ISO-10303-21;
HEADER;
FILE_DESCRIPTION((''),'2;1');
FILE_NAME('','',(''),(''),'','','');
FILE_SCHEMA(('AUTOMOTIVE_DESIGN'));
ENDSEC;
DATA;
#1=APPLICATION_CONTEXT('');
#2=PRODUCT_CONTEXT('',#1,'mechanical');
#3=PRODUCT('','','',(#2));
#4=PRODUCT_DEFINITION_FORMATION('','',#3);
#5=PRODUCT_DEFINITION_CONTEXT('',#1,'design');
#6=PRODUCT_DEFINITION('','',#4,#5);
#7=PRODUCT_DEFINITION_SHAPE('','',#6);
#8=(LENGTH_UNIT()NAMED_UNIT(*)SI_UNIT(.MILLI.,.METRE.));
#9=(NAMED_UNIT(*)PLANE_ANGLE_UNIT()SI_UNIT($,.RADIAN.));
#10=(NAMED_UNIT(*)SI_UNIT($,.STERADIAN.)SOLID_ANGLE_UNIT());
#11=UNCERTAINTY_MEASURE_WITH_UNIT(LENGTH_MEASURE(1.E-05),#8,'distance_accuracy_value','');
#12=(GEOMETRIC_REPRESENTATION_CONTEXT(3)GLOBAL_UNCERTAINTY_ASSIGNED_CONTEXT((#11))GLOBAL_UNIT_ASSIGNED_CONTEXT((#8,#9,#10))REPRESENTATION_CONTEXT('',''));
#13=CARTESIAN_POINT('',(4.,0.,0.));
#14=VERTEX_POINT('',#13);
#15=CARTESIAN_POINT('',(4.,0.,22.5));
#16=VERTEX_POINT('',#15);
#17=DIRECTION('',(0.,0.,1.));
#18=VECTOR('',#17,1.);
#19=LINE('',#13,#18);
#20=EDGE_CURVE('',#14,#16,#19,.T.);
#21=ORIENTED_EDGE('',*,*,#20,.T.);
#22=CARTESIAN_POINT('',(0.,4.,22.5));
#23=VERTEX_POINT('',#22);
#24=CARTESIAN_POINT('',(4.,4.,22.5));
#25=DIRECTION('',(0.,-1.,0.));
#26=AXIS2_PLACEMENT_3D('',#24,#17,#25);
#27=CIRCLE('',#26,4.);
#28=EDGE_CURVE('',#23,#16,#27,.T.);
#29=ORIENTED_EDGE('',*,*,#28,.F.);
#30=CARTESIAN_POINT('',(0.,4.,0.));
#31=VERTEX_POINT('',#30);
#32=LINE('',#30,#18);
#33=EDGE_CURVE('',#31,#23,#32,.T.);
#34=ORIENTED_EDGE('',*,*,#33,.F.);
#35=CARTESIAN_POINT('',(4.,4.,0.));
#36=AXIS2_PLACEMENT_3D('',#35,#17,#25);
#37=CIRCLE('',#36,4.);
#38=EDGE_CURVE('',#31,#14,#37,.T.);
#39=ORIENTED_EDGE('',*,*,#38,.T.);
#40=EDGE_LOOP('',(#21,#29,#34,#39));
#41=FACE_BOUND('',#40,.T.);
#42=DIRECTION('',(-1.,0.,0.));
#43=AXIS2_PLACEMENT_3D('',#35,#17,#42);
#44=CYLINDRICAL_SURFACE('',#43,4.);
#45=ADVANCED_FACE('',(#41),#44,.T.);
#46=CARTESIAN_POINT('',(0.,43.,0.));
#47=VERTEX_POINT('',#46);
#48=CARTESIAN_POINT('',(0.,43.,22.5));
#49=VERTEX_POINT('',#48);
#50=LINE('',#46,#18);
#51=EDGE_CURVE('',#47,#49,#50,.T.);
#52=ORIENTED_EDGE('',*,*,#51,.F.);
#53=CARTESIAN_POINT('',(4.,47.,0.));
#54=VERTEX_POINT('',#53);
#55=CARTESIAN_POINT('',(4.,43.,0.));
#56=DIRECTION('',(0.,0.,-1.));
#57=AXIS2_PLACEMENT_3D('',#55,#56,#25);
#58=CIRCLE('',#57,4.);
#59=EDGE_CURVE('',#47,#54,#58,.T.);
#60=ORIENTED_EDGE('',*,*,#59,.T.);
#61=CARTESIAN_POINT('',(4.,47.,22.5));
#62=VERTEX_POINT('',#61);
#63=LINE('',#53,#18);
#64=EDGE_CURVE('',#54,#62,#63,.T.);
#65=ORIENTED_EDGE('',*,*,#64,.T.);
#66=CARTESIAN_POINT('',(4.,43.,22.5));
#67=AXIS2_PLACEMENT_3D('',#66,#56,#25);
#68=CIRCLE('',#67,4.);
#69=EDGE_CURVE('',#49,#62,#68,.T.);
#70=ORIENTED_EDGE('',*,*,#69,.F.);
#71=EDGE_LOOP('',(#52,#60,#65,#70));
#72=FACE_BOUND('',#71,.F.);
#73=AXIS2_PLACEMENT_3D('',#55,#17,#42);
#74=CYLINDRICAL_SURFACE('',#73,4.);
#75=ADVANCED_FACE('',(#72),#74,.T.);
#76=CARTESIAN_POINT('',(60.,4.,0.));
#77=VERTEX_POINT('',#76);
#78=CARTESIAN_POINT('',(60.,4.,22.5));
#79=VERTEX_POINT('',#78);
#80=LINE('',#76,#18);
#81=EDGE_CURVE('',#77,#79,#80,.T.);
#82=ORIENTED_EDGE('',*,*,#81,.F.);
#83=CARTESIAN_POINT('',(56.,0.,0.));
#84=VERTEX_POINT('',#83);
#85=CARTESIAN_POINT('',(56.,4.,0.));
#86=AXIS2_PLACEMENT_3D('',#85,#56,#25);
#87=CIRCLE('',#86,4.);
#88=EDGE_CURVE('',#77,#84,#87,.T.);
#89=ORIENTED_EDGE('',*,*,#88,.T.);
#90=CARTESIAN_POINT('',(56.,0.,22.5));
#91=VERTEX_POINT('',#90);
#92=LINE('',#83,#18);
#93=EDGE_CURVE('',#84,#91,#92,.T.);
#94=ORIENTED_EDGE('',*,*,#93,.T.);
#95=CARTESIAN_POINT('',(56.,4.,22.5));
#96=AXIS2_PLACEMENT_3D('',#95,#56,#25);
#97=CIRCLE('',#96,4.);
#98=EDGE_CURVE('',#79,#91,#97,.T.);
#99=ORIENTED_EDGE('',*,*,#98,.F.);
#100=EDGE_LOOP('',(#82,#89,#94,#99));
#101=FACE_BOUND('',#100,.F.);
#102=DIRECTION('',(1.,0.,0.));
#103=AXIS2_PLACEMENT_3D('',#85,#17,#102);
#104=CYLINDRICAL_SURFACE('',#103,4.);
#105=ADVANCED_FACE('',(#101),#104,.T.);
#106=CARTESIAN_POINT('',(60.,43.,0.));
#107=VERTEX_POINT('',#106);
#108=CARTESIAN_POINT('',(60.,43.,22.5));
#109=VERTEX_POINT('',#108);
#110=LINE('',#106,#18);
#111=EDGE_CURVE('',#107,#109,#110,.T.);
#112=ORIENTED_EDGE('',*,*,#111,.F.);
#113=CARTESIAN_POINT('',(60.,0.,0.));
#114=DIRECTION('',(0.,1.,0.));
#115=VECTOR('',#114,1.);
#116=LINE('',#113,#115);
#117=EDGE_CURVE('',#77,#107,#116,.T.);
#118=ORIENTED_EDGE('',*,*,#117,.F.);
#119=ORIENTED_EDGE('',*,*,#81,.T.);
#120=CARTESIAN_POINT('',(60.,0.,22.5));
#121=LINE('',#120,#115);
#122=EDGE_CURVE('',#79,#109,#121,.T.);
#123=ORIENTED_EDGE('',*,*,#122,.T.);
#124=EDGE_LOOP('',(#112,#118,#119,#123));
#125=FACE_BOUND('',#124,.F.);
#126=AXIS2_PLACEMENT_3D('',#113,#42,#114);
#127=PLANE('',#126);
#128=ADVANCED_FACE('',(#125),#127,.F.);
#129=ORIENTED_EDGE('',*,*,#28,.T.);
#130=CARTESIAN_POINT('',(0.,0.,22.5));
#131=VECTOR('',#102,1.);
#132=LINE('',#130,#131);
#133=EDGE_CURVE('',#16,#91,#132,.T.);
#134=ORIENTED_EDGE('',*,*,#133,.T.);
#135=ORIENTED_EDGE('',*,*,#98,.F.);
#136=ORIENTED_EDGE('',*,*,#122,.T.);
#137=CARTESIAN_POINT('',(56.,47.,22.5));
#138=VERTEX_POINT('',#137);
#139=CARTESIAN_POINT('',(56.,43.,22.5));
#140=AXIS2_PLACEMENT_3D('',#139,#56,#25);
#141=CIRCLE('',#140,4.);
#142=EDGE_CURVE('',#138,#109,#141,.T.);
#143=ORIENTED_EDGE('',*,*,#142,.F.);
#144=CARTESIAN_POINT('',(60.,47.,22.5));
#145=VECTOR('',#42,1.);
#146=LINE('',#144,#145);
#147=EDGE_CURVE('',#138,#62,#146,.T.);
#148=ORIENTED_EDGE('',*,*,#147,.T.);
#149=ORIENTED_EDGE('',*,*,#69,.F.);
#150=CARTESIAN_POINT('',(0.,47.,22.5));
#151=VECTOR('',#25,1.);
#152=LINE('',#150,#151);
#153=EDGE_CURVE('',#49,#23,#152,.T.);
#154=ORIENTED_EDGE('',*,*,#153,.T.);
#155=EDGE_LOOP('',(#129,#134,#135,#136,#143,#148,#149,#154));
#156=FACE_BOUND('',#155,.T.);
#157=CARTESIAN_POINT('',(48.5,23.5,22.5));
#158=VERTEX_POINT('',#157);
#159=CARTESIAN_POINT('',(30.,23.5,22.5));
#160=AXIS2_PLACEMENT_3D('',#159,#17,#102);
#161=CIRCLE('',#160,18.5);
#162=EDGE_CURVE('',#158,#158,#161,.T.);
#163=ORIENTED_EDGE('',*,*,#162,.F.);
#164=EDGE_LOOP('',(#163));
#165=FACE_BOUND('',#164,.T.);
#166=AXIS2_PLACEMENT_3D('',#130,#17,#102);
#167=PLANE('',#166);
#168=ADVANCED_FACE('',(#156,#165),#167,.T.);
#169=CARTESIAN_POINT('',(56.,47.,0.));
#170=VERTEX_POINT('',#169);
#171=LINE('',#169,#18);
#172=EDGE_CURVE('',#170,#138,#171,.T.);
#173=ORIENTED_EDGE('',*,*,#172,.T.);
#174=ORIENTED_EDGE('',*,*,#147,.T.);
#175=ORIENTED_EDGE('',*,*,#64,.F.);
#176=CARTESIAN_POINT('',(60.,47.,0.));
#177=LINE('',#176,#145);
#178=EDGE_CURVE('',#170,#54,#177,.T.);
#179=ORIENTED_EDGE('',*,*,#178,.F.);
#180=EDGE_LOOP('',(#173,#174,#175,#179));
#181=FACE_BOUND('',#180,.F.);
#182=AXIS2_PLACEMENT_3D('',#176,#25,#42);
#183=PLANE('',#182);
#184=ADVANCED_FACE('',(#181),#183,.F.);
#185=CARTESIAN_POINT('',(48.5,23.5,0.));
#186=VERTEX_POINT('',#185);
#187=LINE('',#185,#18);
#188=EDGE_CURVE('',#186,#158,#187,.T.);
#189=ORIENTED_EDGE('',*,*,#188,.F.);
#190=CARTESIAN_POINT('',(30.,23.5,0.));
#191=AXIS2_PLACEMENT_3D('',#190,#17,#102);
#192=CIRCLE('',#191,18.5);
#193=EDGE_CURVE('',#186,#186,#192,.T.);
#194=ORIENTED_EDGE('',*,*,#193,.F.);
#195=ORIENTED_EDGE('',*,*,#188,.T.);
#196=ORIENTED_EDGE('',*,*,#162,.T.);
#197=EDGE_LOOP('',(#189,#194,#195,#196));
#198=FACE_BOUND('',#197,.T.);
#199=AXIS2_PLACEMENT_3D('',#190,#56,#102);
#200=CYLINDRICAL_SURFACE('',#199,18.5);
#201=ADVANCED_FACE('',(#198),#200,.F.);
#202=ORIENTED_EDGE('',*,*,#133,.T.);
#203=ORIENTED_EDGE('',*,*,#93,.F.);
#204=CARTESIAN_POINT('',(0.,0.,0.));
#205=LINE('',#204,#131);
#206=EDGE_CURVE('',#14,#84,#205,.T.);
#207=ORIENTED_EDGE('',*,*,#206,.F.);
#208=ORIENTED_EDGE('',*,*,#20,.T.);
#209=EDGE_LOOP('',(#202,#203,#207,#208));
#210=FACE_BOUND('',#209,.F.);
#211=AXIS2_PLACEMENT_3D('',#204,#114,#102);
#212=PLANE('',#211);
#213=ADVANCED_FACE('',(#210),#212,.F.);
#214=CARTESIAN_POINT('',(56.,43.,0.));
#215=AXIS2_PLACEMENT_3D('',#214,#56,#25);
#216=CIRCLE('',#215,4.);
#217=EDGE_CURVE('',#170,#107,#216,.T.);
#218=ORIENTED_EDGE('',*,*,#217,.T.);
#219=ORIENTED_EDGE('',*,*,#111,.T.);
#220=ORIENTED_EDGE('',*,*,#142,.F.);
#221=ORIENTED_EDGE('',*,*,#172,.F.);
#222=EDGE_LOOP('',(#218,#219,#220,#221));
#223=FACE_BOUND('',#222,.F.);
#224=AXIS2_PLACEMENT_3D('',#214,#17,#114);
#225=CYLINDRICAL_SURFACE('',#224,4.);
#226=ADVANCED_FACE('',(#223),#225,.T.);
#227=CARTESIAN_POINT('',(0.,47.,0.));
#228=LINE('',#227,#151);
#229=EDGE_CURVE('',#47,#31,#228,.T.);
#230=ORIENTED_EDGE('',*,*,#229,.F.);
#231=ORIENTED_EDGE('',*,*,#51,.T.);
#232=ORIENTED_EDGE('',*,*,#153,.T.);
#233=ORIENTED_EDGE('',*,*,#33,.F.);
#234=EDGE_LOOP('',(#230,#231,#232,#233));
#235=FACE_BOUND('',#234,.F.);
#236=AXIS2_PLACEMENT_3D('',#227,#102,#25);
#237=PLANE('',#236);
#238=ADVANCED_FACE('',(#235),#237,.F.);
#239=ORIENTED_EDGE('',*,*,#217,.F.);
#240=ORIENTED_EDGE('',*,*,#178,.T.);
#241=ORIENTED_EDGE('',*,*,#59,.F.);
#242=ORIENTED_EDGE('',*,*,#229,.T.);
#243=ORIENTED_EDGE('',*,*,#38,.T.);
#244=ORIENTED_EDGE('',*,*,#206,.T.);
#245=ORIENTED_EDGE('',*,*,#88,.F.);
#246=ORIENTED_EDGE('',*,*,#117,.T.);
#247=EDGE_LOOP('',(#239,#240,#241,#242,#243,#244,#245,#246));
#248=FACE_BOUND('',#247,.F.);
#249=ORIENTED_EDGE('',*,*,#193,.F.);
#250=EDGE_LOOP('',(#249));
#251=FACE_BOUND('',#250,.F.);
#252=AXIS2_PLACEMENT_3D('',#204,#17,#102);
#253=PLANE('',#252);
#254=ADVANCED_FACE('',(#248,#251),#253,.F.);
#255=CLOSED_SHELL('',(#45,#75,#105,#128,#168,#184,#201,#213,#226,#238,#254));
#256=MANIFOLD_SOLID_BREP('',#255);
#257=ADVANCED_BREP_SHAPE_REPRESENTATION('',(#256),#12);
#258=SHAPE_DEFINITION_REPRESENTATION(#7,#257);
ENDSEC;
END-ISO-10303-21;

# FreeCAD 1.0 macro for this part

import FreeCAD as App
import Part
import Sketcher

V = App.Vector
Q = App.Units.Quantity


def edges_at(feature, points):
    """Names of the edges that pass closest to the given points."""
    edges = feature.Shape.Edges
    near = lambda p: min(range(len(edges)), key=lambda i: edges[i].distToShape(Part.Vertex(*p))[0])
    return sorted({f"Edge{near(p) + 1}" for p in points})

doc = App.newDocument("Part")
body = doc.addObject("PartDesign::Body", "Body")

sketch1 = body.newObject("Sketcher::SketchObject", "Sketch")
sketch1.AttachmentSupport = (doc.getObject("XY_Plane"), [""])
sketch1.MapMode = "FlatFace"
sketch1.addGeometry(Part.LineSegment(V(0, 47, 0), V(0, 0, 0)), False)
sketch1.addGeometry(Part.LineSegment(V(0, 0, 0), V(60, 0, 0)), False)
sketch1.addGeometry(Part.LineSegment(V(60, 0, 0), V(60, 47, 0)), False)
sketch1.addGeometry(Part.LineSegment(V(60, 47, 0), V(0, 47, 0)), False)
sketch1.addGeometry(Part.Circle(V(30, 24, 0), V(0, 0, 1), 18), False)
sketch1.addConstraint(Sketcher.Constraint("Coincident", 0, 2, 1, 1))
sketch1.addConstraint(Sketcher.Constraint("Coincident", 1, 2, 2, 1))
sketch1.addConstraint(Sketcher.Constraint("Coincident", 2, 2, 3, 1))
sketch1.addConstraint(Sketcher.Constraint("Coincident", 3, 2, 0, 1))
sketch1.addConstraint(Sketcher.Constraint("Vertical", 0))
sketch1.addConstraint(Sketcher.Constraint("Horizontal", 1))
sketch1.addConstraint(Sketcher.Constraint("Vertical", 2))
sketch1.addConstraint(Sketcher.Constraint("Horizontal", 3))
sketch1.addConstraint(Sketcher.Constraint("Coincident", 0, 2, -1, 1))
sketch1.addConstraint(Sketcher.Constraint("Diameter", 4, Q("37 mm")))
sketch1.addConstraint(Sketcher.Constraint("DistanceX", 1, 1, 1, 2, Q("60 mm")))
sketch1.addConstraint(Sketcher.Constraint("DistanceY", 0, 2, 0, 1, Q("47 mm")))
sketch1.addConstraint(Sketcher.Constraint("DistanceX", -1, 1, 4, 3, Q("30 mm")))
sketch1.addConstraint(Sketcher.Constraint("DistanceY", -1, 1, 4, 3, Q("23.5 mm")))
pad1 = body.newObject("PartDesign::Pad", "Pad")
pad1.Profile = sketch1
pad1.Length = 22.5
doc.recompute()

fillet = body.newObject("PartDesign::Fillet", "Fillet")
fillet.Base = (pad1, edges_at(pad1, [
    (60, 47, 11.25),
    (60, 0, 11.25),
    (0, 0, 11.25),
    (0, 47, 11.25),
]))
fillet.Radius = 4

doc.recompute()
